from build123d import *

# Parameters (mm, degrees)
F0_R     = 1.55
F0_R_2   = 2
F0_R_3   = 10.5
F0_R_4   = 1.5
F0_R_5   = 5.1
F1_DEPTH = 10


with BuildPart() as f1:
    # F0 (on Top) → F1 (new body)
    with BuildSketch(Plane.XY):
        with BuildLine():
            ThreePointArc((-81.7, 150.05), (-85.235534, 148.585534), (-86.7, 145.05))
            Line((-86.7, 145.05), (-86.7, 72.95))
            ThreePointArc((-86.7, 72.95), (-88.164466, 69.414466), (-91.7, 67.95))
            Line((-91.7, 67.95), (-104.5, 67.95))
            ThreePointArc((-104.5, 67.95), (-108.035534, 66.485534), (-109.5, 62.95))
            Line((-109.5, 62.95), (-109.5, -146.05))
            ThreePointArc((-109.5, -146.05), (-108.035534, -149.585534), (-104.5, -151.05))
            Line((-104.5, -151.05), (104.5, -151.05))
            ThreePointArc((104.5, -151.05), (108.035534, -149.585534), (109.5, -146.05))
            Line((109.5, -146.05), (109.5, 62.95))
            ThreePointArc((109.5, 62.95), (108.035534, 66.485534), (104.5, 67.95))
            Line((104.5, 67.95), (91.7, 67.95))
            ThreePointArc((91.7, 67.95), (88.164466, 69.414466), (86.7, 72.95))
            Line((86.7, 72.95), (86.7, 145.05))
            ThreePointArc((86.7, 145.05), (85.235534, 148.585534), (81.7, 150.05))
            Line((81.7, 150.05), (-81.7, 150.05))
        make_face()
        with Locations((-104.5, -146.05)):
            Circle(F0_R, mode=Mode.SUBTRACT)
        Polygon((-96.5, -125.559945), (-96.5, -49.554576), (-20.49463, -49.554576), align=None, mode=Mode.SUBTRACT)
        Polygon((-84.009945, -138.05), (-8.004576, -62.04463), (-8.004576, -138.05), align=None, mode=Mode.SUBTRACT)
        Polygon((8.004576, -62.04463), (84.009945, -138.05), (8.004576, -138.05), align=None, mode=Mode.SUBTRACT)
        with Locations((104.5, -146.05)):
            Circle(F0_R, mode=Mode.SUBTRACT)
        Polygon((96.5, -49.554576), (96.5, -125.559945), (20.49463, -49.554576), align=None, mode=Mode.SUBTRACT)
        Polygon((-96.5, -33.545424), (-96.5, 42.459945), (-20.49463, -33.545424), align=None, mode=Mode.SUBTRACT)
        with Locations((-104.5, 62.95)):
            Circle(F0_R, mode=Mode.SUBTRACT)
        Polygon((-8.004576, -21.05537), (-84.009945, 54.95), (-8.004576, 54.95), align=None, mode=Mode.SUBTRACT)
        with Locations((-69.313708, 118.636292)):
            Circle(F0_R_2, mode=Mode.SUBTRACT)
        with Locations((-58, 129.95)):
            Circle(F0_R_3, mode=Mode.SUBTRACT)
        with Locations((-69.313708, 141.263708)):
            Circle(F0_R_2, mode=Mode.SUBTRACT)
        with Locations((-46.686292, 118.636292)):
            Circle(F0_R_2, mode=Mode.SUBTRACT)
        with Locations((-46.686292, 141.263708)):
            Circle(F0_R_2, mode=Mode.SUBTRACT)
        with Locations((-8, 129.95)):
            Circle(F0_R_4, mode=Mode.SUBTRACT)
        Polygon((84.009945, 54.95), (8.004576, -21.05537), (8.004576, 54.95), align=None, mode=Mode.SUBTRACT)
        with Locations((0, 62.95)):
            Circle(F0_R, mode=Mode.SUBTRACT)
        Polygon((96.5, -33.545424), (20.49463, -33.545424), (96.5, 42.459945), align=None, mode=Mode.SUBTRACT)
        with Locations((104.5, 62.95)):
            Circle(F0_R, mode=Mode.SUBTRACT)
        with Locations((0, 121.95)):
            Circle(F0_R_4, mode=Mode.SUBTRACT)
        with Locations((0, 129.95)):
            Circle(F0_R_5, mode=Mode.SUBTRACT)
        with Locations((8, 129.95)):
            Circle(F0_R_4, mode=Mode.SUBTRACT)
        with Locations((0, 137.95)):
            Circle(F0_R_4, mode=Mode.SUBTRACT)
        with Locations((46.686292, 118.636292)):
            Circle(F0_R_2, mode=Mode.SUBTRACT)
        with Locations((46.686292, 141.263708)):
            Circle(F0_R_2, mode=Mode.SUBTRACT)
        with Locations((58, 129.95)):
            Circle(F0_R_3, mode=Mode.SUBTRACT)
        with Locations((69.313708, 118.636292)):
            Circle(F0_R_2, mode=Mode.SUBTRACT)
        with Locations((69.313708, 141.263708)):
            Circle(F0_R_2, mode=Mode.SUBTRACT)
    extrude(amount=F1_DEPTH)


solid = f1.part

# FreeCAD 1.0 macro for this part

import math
import FreeCAD as App
import Part
import Sketcher
Q = App.Units.Quantity


def add_polygon(sketch, points):
    """Adds a closed chain of lines whose ends are joined by coincident constraints."""
    first, n = sketch.GeometryCount, len(points)
    for a, b in zip(points, points[1:] + points[:1]):
        sketch.addGeometry(Part.LineSegment(App.Vector(*a, 0), App.Vector(*b, 0)), False)
    for i in range(n):
        sketch.addConstraint(Sketcher.Constraint("Coincident", first + i, 2, first + (i + 1) % n, 1))

doc = App.newDocument("Part")
body = doc.addObject("PartDesign::Body", "Body")

sketch1 = body.newObject("Sketcher::SketchObject", "Sketch")
sketch1.AttachmentSupport = (doc.getObject("XY_Plane"), [""])
sketch1.MapMode = "FlatFace"
sketch1.addGeometry(Part.ArcOfCircle(Part.Circle(App.Vector(-81.7, 145.1, 0), App.Vector(0, 0, 1), 5), math.radians(90), math.radians(180)), False)
sketch1.addGeometry(Part.LineSegment(App.Vector(-86.7, 145.1, 0), App.Vector(-86.7, 73, 0)), False)
sketch1.addGeometry(Part.ArcOfCircle(Part.Circle(App.Vector(-91.7, 72.9, 0), App.Vector(0, 0, 1), 5), math.radians(-90), math.radians(0)), False)
sketch1.addGeometry(Part.LineSegment(App.Vector(-91.7, 68, 0), App.Vector(-104.5, 68, 0)), False)
sketch1.addGeometry(Part.ArcOfCircle(Part.Circle(App.Vector(-104.5, 63, 0), App.Vector(0, 0, 1), 5), math.radians(90), math.radians(180)), False)
sketch1.addGeometry(Part.LineSegment(App.Vector(-109.5, 63, 0), App.Vector(-109.5, -146.1, 0)), False)
sketch1.addGeometry(Part.ArcOfCircle(Part.Circle(App.Vector(-104.5, -146.1, 0), App.Vector(0, 0, 1), 5), math.radians(180), math.radians(270)), False)
sketch1.addGeometry(Part.LineSegment(App.Vector(-104.5, -151.1, 0), App.Vector(104.5, -151.1, 0)), False)
sketch1.addGeometry(Part.ArcOfCircle(Part.Circle(App.Vector(104.5, -146.1, 0), App.Vector(0, 0, 1), 5), math.radians(-90), math.radians(0)), False)
sketch1.addGeometry(Part.LineSegment(App.Vector(109.5, -146.1, 0), App.Vector(109.5, 63, 0)), False)
sketch1.addGeometry(Part.ArcOfCircle(Part.Circle(App.Vector(104.5, 63, 0), App.Vector(0, 0, 1), 5), math.radians(0), math.radians(90)), False)
sketch1.addGeometry(Part.LineSegment(App.Vector(104.5, 68, 0), App.Vector(91.7, 68, 0)), False)
sketch1.addGeometry(Part.ArcOfCircle(Part.Circle(App.Vector(91.7, 72.9, 0), App.Vector(0, 0, 1), 5), math.radians(180), math.radians(270)), False)
sketch1.addGeometry(Part.LineSegment(App.Vector(86.7, 73, 0), App.Vector(86.7, 145.1, 0)), False)
sketch1.addGeometry(Part.ArcOfCircle(Part.Circle(App.Vector(81.7, 145.1, 0), App.Vector(0, 0, 1), 5), math.radians(0), math.radians(90)), False)
sketch1.addGeometry(Part.LineSegment(App.Vector(81.7, 150.1, 0), App.Vector(-81.7, 150.1, 0)), False)
sketch1.addGeometry(Part.Circle(App.Vector(-104.5, -146.1, 0), App.Vector(0, 0, 1), 1.6), False)
add_polygon(sketch1, [(-20.5, -49.6), (-96.5, -125.6), (-96.5, -49.6)])
add_polygon(sketch1, [(-8, -138.1), (-84, -138.1), (-8, -62)])
add_polygon(sketch1, [(8, -138.1), (8, -62), (84, -138.1)])
sketch1.addGeometry(Part.Circle(App.Vector(104.5, -146.1, 0), App.Vector(0, 0, 1), 1.6), False)
add_polygon(sketch1, [(20.5, -49.6), (96.5, -49.6), (96.5, -125.6)])
add_polygon(sketch1, [(-20.5, -33.5), (-96.5, -33.5), (-96.5, 42.5)])
sketch1.addGeometry(Part.Circle(App.Vector(-104.5, 63, 0), App.Vector(0, 0, 1), 1.6), False)
add_polygon(sketch1, [(-8, 55), (-8, -21.1), (-84, 55)])
sketch1.addGeometry(Part.Circle(App.Vector(-69.3, 118.6, 0), App.Vector(0, 0, 1), 2), False)
sketch1.addGeometry(Part.Circle(App.Vector(-69.3, 141.3, 0), App.Vector(0, 0, 1), 2), False)
sketch1.addGeometry(Part.Circle(App.Vector(-58, 129.9, 0), App.Vector(0, 0, 1), 10.5), False)
sketch1.addGeometry(Part.Circle(App.Vector(-46.7, 118.6, 0), App.Vector(0, 0, 1), 2), False)
sketch1.addGeometry(Part.Circle(App.Vector(-46.7, 141.3, 0), App.Vector(0, 0, 1), 2), False)
sketch1.addGeometry(Part.Circle(App.Vector(-8, 129.9, 0), App.Vector(0, 0, 1), 1.5), False)
add_polygon(sketch1, [(8, 55), (84, 55), (8, -21.1)])
sketch1.addGeometry(Part.Circle(App.Vector(0, 63, 0), App.Vector(0, 0, 1), 1.6), False)
add_polygon(sketch1, [(96.5, 42.5), (96.5, -33.5), (20.5, -33.5)])
sketch1.addGeometry(Part.Circle(App.Vector(104.5, 63, 0), App.Vector(0, 0, 1), 1.6), False)
sketch1.addGeometry(Part.Circle(App.Vector(0, 122, 0), App.Vector(0, 0, 1), 1.5), False)
sketch1.addGeometry(Part.Circle(App.Vector(0, 129.9, 0), App.Vector(0, 0, 1), 5.1), False)
sketch1.addGeometry(Part.Circle(App.Vector(8, 129.9, 0), App.Vector(0, 0, 1), 1.5), False)
sketch1.addGeometry(Part.Circle(App.Vector(0, 137.9, 0), App.Vector(0, 0, 1), 1.5), False)
sketch1.addGeometry(Part.Circle(App.Vector(46.7, 118.6, 0), App.Vector(0, 0, 1), 2), False)
sketch1.addGeometry(Part.Circle(App.Vector(46.7, 141.3, 0), App.Vector(0, 0, 1), 2), False)
sketch1.addGeometry(Part.Circle(App.Vector(69.3, 118.6, 0), App.Vector(0, 0, 1), 2), False)
sketch1.addGeometry(Part.Circle(App.Vector(58, 129.9, 0), App.Vector(0, 0, 1), 10.5), False)
sketch1.addGeometry(Part.Circle(App.Vector(69.3, 141.3, 0), App.Vector(0, 0, 1), 2), False)
sketch1.addConstraint(Sketcher.Constraint("Tangent", 0, 2, 1, 1))
sketch1.addConstraint(Sketcher.Constraint("Tangent", 1, 2, 2, 2))
sketch1.addConstraint(Sketcher.Constraint("Tangent", 2, 1, 3, 1))
sketch1.addConstraint(Sketcher.Constraint("Tangent", 3, 2, 4, 1))
sketch1.addConstraint(Sketcher.Constraint("Tangent", 4, 2, 5, 1))
sketch1.addConstraint(Sketcher.Constraint("Tangent", 5, 2, 6, 1))
sketch1.addConstraint(Sketcher.Constraint("Tangent", 6, 2, 7, 1))
sketch1.addConstraint(Sketcher.Constraint("Tangent", 7, 2, 8, 1))
sketch1.addConstraint(Sketcher.Constraint("Tangent", 8, 2, 9, 1))
sketch1.addConstraint(Sketcher.Constraint("Tangent", 9, 2, 10, 1))
sketch1.addConstraint(Sketcher.Constraint("Tangent", 10, 2, 11, 1))
sketch1.addConstraint(Sketcher.Constraint("Tangent", 11, 2, 12, 2))
sketch1.addConstraint(Sketcher.Constraint("Tangent", 12, 1, 13, 1))
sketch1.addConstraint(Sketcher.Constraint("Tangent", 13, 2, 14, 1))
sketch1.addConstraint(Sketcher.Constraint("Tangent", 14, 2, 15, 1))
sketch1.addConstraint(Sketcher.Constraint("Tangent", 15, 2, 0, 1))
sketch1.addConstraint(Sketcher.Constraint("Vertical", 1))
sketch1.addConstraint(Sketcher.Constraint("Horizontal", 3))
sketch1.addConstraint(Sketcher.Constraint("Vertical", 5))
sketch1.addConstraint(Sketcher.Constraint("Horizontal", 7))
sketch1.addConstraint(Sketcher.Constraint("Vertical", 9))
sketch1.addConstraint(Sketcher.Constraint("Horizontal", 11))
sketch1.addConstraint(Sketcher.Constraint("Vertical", 13))
sketch1.addConstraint(Sketcher.Constraint("Horizontal", 15))
sketch1.addConstraint(Sketcher.Constraint("Vertical", 18))
sketch1.addConstraint(Sketcher.Constraint("Horizontal", 19))
sketch1.addConstraint(Sketcher.Constraint("Horizontal", 20))
sketch1.addConstraint(Sketcher.Constraint("Vertical", 22))
sketch1.addConstraint(Sketcher.Constraint("Vertical", 23))
sketch1.addConstraint(Sketcher.Constraint("Horizontal", 25))
sketch1.addConstraint(Sketcher.Constraint("Horizontal", 27))
sketch1.addConstraint(Sketcher.Constraint("Vertical", 28))
sketch1.addConstraint(Sketcher.Constraint("Horizontal", 30))
sketch1.addConstraint(Sketcher.Constraint("Vertical", 31))
sketch1.addConstraint(Sketcher.Constraint("Vertical", 34))
sketch1.addConstraint(Sketcher.Constraint("Horizontal", 36))
sketch1.addConstraint(Sketcher.Constraint("Horizontal", 43))
sketch1.addConstraint(Sketcher.Constraint("Vertical", 45))
sketch1.addConstraint(Sketcher.Constraint("Vertical", 47))
sketch1.addConstraint(Sketcher.Constraint("Horizontal", 48))
sketch1.addConstraint(Sketcher.Constraint("Coincident", 16, 3, 6, 3))
sketch1.addConstraint(Sketcher.Constraint("Coincident", 26, 3, 8, 3))
sketch1.addConstraint(Sketcher.Constraint("Coincident", 33, 3, 4, 3))
sketch1.addConstraint(Sketcher.Constraint("Coincident", 50, 3, 10, 3))
sketch1.addConstraint(Sketcher.Constraint("Equal", 0, 2))
sketch1.addConstraint(Sketcher.Constraint("Equal", 2, 4))
sketch1.addConstraint(Sketcher.Constraint("Equal", 4, 6))
sketch1.addConstraint(Sketcher.Constraint("Equal", 6, 8))
sketch1.addConstraint(Sketcher.Constraint("Equal", 8, 10))
sketch1.addConstraint(Sketcher.Constraint("Equal", 10, 12))
sketch1.addConstraint(Sketcher.Constraint("Equal", 12, 14))
sketch1.addConstraint(Sketcher.Constraint("Equal", 16, 26))
sketch1.addConstraint(Sketcher.Constraint("Equal", 26, 33))
sketch1.addConstraint(Sketcher.Constraint("Equal", 37, 38))
sketch1.addConstraint(Sketcher.Constraint("Equal", 38, 40))
sketch1.addConstraint(Sketcher.Constraint("Equal", 40, 41))
sketch1.addConstraint(Sketcher.Constraint("Equal", 33, 46))
sketch1.addConstraint(Sketcher.Constraint("Equal", 46, 50))
sketch1.addConstraint(Sketcher.Constraint("Equal", 42, 51))
sketch1.addConstraint(Sketcher.Constraint("Equal", 51, 53))
sketch1.addConstraint(Sketcher.Constraint("Equal", 53, 54))
sketch1.addConstraint(Sketcher.Constraint("Equal", 41, 55))
sketch1.addConstraint(Sketcher.Constraint("Equal", 55, 56))
sketch1.addConstraint(Sketcher.Constraint("Equal", 56, 57))
sketch1.addConstraint(Sketcher.Constraint("Equal", 39, 58))
sketch1.addConstraint(Sketcher.Constraint("Equal", 57, 59))
sketch1.addConstraint(Sketcher.Constraint("Symmetric", 4, 3, 10, 3, -2))
sketch1.addConstraint(Sketcher.Constraint("Symmetric", 42, 3, 53, 3, -2))
sketch1.addConstraint(Sketcher.Constraint("Symmetric", 40, 3, 55, 3, -2))
sketch1.addConstraint(Sketcher.Constraint("Symmetric", 41, 3, 56, 3, -2))
sketch1.addConstraint(Sketcher.Constraint("Symmetric", 37, 3, 57, 3, -2))
sketch1.addConstraint(Sketcher.Constraint("Symmetric", 39, 3, 58, 3, -2))
sketch1.addConstraint(Sketcher.Constraint("Symmetric", 38, 3, 59, 3, -2))
sketch1.addConstraint(Sketcher.Constraint("Symmetric", 21, 2, 23, 2, -2))
sketch1.addConstraint(Sketcher.Constraint("Symmetric", 20, 2, 24, 2, -2))
sketch1.addConstraint(Sketcher.Constraint("Symmetric", 18, 2, 27, 2, -2))
sketch1.addConstraint(Sketcher.Constraint("Symmetric", 35, 2, 43, 2, -2))
sketch1.addConstraint(Sketcher.Constraint("Symmetric", 34, 2, 44, 2, -2))
sketch1.addConstraint(Sketcher.Constraint("Symmetric", 30, 2, 47, 2, -2))
sketch1.addConstraint(Sketcher.Constraint("PointOnObject", 46, 3, -2))
sketch1.addConstraint(Sketcher.Constraint("PointOnObject", 51, 3, -2))
sketch1.addConstraint(Sketcher.Constraint("PointOnObject", 52, 3, -2))
sketch1.addConstraint(Sketcher.Constraint("PointOnObject", 54, 3, -2))
sketch1.addConstraint(Sketcher.Constraint("Parallel", 17, 21))
sketch1.addConstraint(Sketcher.Constraint("Perpendicular", 21, 24))
sketch1.addConstraint(Sketcher.Constraint("Parallel", 24, 29))
sketch1.addConstraint(Sketcher.Constraint("Parallel", 29, 32))
sketch1.addConstraint(Sketcher.Constraint("Parallel", 32, 35))
sketch1.addConstraint(Sketcher.Constraint("Parallel", 44, 49))
sketch1.addConstraint(Sketcher.Constraint("Horizontal", 37, 3, 40, 3))
sketch1.addConstraint(Sketcher.Constraint("Horizontal", 38, 3, 41, 3))
sketch1.addConstraint(Sketcher.Constraint("Horizontal", 39, 3, 42, 3))
sketch1.addConstraint(Sketcher.Constraint("Horizontal", 33, 3, 46, 3))
sketch1.addConstraint(Sketcher.Constraint("Horizontal", 42, 3, 52, 3))
sketch1.addConstraint(Sketcher.Constraint("Horizontal", 17, 2, 28, 2))
sketch1.addConstraint(Sketcher.Constraint("Horizontal", 31, 2, 49, 2))
sketch1.addConstraint(Sketcher.Constraint("Vertical", 37, 3, 38, 3))
sketch1.addConstraint(Sketcher.Constraint("Vertical", 40, 3, 41, 3))
sketch1.addConstraint(Sketcher.Constraint("Vertical", 18, 2, 30, 2))
sketch1.addConstraint(Sketcher.Constraint("Vertical", 19, 2, 32, 2))
sketch1.addConstraint(Sketcher.Constraint("Vertical", 22, 2, 34, 2))
sketch1.addConstraint(Sketcher.Constraint("Vertical", 20, 2, 35, 2))
sketch1.addConstraint(Sketcher.Constraint("Equal", 3, 11))
sketch1.addConstraint(Sketcher.Constraint("Equal", 19, 20))
sketch1.addConstraint(Sketcher.Constraint("Equal", 7, 5))
sketch1.addConstraint(Sketcher.Constraint("Diameter", 37, Q("4 mm")))
sketch1.addConstraint(Sketcher.Constraint("Diameter", 39, Q("21 mm")))
sketch1.addConstraint(Sketcher.Constraint("Diameter", 42, Q("3 mm")))
sketch1.addConstraint(Sketcher.Constraint("Radius", 0, Q("5 mm")))
sketch1.addConstraint(Sketcher.Constraint("Diameter", 16, Q("3.1 mm")))
sketch1.addConstraint(Sketcher.Constraint("Diameter", 52, Q("10.2 mm")))
sketch1.addConstraint(Sketcher.Constraint("DistanceX", 7, 1, 7, 2, Q("209 mm")))
sketch1.addConstraint(Sketcher.Constraint("DistanceX", 3, 2, 3, 1, Q("12.8 mm")))
sketch1.addConstraint(Sketcher.Constraint("DistanceY", 1, 2, 1, 1, Q("72.1 mm")))
sketch1.addConstraint(Sketcher.Constraint("DistanceX", 39, 3, -1, 1, Q("58 mm")))
sketch1.addConstraint(Sketcher.Constraint("DistanceX", 42, 3, -1, 1, Q("8 mm")))
sketch1.addConstraint(Sketcher.Constraint("DistanceX", 17, 2, -1, 1, Q("96.5 mm")))
sketch1.addConstraint(Sketcher.Constraint("DistanceY", -1, 1, 0, 3, Q("145.05 mm")))
sketch1.addConstraint(Sketcher.Constraint("DistanceY", -1, 1, 39, 3, Q("129.95 mm")))
sketch1.addConstraint(Sketcher.Constraint("DistanceY", -1, 1, 51, 3, Q("121.95 mm")))
sketch1.addConstraint(Sketcher.Constraint("DistanceY", -1, 1, 54, 3, Q("137.95 mm")))
sketch1.addConstraint(Sketcher.Constraint("DistanceY", 20, 2, -1, 1, Q("138.05 mm")))
sketch1.addConstraint(Sketcher.Constraint("DistanceY", -1, 1, 35, 2, Q("54.95 mm")))
sketch1.addConstraint(Sketcher.Constraint("DistanceX", 19, 1, 19, 2, Q("76.00537 mm")))
sketch1.addConstraint(Sketcher.Constraint("DistanceX", 37, 3, -1, 1, Q("69.313708 mm")))
sketch1.addConstraint(Sketcher.Constraint("DistanceY", -1, 1, 37, 3, Q("118.636292 mm")))
sketch1.addConstraint(Sketcher.Constraint("DistanceY", -1, 1, 38, 3, Q("141.263708 mm")))
sketch1.addConstraint(Sketcher.Constraint("DistanceX", 40, 3, -1, 1, Q("46.686292 mm")))
sketch1.addConstraint(Sketcher.Constraint("DistanceY", 17, 2, -1, 1, Q("125.559945 mm")))
sketch1.addConstraint(Sketcher.Constraint("DistanceX", 20, 2, -1, 1, Q("84.009945 mm")))
sketch1.addConstraint(Sketcher.Constraint("DistanceY", 30, 2, -1, 1, Q("33.545424 mm")))
pad1 = body.newObject("PartDesign::Pad", "Pad")
pad1.Profile = sketch1
pad1.Length = 10

doc.recompute()
